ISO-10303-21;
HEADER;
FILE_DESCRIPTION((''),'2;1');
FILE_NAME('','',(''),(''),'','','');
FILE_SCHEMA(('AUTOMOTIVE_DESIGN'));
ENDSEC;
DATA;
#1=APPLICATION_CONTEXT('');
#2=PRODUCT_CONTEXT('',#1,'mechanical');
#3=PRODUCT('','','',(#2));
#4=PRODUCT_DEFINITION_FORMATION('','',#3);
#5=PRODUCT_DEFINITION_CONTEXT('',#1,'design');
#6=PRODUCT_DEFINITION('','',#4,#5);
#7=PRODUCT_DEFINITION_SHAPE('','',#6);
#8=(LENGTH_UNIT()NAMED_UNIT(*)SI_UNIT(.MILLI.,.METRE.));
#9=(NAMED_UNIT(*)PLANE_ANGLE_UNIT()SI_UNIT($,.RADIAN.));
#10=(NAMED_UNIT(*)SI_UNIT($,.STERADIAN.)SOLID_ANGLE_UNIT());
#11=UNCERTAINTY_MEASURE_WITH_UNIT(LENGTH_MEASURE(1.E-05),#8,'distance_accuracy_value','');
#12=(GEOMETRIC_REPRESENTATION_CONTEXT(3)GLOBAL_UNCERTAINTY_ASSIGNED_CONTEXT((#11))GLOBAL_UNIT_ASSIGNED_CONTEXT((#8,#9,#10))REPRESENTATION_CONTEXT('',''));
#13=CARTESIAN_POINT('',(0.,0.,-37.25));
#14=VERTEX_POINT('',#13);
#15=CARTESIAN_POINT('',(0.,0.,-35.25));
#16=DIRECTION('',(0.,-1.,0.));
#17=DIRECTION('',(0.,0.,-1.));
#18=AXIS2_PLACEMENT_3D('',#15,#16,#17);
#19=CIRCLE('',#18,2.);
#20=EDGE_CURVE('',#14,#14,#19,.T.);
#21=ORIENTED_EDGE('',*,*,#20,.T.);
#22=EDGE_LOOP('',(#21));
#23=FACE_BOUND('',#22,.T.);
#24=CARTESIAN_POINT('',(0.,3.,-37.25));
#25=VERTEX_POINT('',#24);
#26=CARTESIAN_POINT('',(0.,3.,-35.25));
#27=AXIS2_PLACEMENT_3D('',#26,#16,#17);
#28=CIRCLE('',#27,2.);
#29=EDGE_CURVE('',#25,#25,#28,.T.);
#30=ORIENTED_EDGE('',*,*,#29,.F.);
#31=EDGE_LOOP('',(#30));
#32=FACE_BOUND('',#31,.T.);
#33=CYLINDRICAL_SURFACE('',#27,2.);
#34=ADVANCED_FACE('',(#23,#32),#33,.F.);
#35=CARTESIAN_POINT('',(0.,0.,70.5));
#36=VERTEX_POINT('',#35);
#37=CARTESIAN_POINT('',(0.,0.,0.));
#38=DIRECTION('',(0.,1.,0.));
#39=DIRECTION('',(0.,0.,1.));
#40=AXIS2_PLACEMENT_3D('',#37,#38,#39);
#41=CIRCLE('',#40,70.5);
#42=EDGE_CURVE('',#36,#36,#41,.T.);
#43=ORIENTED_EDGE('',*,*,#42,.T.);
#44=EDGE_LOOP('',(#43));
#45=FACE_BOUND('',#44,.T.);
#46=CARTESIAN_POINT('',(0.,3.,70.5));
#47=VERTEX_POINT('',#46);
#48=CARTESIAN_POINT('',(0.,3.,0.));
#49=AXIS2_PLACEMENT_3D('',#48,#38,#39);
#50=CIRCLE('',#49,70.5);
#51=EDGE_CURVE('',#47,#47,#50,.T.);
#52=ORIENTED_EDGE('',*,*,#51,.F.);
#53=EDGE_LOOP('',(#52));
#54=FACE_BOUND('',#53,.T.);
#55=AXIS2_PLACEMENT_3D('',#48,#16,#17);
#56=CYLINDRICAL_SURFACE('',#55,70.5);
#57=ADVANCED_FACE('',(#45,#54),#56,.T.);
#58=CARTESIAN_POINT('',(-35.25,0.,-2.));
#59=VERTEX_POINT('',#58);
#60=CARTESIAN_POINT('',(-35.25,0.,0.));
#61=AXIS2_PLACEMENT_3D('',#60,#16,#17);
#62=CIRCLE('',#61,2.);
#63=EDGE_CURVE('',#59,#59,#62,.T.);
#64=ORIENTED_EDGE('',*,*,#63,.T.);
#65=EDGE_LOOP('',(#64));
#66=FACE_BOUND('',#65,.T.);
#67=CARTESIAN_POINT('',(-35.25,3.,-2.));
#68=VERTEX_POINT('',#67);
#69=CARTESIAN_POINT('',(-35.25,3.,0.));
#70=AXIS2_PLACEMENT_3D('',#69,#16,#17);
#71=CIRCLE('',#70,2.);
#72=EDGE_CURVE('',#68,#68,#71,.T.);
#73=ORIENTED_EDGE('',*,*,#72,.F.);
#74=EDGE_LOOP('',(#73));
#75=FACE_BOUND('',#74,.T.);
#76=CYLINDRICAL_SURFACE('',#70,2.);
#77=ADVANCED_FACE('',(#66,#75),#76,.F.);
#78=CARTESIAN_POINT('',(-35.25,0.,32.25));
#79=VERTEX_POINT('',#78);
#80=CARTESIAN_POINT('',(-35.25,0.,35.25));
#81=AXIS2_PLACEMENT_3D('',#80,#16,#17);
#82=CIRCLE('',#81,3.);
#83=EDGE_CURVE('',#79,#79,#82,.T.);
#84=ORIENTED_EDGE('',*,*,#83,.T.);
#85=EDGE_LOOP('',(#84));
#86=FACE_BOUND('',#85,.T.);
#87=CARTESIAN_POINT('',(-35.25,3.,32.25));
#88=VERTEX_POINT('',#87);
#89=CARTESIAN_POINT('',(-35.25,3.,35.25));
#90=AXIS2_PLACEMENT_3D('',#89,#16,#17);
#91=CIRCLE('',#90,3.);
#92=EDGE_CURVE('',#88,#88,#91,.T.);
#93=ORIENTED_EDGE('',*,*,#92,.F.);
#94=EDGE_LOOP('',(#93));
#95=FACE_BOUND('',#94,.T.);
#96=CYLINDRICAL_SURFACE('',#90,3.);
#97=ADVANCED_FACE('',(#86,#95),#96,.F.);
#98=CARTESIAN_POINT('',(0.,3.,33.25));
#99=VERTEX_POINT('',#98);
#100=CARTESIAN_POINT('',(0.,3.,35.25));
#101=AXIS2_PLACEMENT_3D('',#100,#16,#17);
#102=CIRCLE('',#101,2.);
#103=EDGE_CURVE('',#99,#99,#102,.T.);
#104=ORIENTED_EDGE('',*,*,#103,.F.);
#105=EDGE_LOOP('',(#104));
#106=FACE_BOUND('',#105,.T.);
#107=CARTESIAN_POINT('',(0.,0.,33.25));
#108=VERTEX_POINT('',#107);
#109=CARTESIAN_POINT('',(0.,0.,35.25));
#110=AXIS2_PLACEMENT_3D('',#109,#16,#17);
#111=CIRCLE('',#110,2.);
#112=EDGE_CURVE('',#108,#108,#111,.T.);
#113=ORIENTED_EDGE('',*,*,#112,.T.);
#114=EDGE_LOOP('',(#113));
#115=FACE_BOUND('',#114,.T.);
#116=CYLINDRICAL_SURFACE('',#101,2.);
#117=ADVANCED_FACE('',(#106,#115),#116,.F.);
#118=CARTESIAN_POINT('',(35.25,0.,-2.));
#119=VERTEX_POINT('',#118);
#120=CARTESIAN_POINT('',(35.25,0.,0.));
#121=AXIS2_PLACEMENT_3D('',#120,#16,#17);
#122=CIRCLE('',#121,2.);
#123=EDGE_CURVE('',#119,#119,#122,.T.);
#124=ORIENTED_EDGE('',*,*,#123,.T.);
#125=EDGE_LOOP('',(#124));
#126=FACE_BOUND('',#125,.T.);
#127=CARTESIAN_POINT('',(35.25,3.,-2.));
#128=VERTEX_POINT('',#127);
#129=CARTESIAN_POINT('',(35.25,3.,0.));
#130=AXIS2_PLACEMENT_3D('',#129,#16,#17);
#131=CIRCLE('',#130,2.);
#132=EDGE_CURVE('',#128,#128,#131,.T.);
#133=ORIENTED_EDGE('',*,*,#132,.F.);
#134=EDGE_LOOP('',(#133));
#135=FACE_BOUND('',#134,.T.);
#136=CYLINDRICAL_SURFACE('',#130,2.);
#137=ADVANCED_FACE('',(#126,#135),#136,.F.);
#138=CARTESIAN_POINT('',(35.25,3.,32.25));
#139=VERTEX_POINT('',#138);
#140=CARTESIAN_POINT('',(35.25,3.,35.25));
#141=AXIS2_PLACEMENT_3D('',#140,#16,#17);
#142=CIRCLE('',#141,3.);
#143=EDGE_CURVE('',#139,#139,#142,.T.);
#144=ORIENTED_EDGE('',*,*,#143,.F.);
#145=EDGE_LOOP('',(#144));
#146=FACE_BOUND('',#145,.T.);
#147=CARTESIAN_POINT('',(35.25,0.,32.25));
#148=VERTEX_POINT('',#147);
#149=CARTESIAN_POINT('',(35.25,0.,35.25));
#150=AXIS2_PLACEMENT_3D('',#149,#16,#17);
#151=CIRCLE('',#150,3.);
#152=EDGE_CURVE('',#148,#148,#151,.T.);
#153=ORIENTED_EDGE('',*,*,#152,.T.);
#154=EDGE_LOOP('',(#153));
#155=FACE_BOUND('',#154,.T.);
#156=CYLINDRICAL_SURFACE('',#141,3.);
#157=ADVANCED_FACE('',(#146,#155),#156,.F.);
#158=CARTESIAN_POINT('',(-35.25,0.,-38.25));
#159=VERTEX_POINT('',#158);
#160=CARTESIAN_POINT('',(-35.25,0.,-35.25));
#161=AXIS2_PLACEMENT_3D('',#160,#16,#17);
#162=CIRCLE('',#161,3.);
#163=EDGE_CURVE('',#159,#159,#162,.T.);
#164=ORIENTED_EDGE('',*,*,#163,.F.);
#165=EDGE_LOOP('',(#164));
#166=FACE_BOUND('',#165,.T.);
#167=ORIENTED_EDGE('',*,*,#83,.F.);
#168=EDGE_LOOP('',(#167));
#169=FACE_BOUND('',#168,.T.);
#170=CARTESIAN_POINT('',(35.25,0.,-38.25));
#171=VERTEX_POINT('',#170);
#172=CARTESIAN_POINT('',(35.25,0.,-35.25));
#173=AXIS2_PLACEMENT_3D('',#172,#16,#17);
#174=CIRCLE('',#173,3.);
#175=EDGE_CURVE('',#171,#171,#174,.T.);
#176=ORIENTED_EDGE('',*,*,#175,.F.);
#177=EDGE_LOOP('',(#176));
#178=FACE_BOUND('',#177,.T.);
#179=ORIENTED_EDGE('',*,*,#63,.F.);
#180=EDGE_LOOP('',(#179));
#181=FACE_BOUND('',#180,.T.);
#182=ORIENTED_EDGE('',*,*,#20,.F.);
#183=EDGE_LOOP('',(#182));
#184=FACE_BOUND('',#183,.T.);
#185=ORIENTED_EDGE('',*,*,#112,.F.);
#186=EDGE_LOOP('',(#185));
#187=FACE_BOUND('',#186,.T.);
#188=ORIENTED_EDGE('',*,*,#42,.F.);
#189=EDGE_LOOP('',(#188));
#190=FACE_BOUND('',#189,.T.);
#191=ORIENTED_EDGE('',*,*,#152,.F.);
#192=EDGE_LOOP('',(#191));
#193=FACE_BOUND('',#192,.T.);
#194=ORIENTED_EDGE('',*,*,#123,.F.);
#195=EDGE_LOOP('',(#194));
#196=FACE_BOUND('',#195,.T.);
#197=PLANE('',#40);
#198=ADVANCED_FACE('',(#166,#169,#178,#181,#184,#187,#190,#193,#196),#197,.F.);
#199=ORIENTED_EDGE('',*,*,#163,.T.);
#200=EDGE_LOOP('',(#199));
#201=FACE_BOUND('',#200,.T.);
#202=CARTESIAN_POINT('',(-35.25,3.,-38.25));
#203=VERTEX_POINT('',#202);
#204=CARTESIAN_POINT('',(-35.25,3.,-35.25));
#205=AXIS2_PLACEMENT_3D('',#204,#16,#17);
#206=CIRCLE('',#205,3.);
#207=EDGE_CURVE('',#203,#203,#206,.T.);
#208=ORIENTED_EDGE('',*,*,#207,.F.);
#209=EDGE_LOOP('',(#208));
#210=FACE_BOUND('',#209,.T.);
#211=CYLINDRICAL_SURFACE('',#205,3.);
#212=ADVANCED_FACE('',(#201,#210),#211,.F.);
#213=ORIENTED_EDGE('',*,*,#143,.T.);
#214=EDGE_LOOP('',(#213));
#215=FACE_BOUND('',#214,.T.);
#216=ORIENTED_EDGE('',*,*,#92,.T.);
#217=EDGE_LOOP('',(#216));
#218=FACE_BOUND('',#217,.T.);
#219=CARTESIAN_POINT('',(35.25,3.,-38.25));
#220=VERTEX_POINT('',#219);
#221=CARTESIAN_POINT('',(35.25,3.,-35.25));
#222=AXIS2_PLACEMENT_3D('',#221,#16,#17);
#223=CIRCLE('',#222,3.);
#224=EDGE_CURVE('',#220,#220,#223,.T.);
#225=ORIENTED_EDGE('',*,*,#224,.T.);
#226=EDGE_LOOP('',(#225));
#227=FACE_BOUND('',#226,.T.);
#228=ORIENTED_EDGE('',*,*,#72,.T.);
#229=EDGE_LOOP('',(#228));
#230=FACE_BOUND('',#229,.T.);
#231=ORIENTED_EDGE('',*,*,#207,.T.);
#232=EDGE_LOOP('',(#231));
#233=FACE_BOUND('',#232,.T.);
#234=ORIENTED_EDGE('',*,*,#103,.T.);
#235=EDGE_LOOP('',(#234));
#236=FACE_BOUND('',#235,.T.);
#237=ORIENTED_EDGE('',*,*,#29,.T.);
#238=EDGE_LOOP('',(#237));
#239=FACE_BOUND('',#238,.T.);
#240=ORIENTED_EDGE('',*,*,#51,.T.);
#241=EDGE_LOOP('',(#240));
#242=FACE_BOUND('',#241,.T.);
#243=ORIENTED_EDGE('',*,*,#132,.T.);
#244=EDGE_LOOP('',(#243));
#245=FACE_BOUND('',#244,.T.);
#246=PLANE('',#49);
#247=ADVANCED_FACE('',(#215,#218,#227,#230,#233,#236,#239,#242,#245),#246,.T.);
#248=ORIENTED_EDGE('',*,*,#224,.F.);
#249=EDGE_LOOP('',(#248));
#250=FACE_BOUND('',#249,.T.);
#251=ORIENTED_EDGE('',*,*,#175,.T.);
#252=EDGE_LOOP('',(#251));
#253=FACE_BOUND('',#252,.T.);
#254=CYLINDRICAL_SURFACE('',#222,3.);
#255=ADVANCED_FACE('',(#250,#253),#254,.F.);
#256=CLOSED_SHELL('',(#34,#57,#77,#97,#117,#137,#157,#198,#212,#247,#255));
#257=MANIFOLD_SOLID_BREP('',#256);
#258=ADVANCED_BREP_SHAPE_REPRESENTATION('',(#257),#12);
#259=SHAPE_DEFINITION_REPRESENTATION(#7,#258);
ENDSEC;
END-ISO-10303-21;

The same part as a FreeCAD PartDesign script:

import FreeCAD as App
import Part
import Sketcher

V = App.Vector
Q = App.Units.Quantity

doc = App.newDocument("Part")
body = doc.addObject("PartDesign::Body", "Body")

sketch1 = doc.addObject("Sketcher::SketchObject", "Sketch")
body.addObject(sketch1)
sketch1.AttachmentSupport = (doc.XZ_Plane, [""])
sketch1.MapMode = "FlatFace"
sketch1.addGeometry(Part.Circle(V(0, 0, 0), V(0, 0, 1), 70), False)
sketch1.addConstraint([
    Sketcher.Constraint("Coincident", 0, 3, -1, 1),
    Sketcher.Constraint("Diameter", 0, Q("141 mm")),
])
pad1 = doc.addObject("PartDesign::Pad", "Pad")
body.addObject(pad1)
pad1.Profile = sketch1
pad1.Length = 3
pad1.Reversed = True

sketch2 = doc.addObject("Sketcher::SketchObject", "Sketch001")
body.addObject(sketch2)
sketch2.AttachmentSupport = (doc.XZ_Plane, [""])
sketch2.MapMode = "FlatFace"
sketch2.addGeometry([
    Part.Circle(V(-35.2, 0, 0), V(0, 0, 1), 2),
    Part.Circle(V(0, -35.2, 0), V(0, 0, 1), 2),
    Part.Circle(V(35.2, 0, 0), V(0, 0, 1), 2),
    Part.Circle(V(0, 35.2, 0), V(0, 0, 1), 2),
    Part.Circle(V(-35.2, -35.2, 0), V(0, 0, 1), 3),
    Part.Circle(V(-35.2, 35.2, 0), V(0, 0, 1), 3),
    Part.Circle(V(35.2, 35.2, 0), V(0, 0, 1), 3),
    Part.Circle(V(35.2, -35.2, 0), V(0, 0, 1), 3),
], False)
sketch2.addConstraint([
    Sketcher.Constraint("Equal", 0, 1),
    Sketcher.Constraint("Equal", 1, 2),
    Sketcher.Constraint("Equal", 2, 3),
    Sketcher.Constraint("Equal", 4, 5),
    Sketcher.Constraint("Equal", 5, 6),
    Sketcher.Constraint("Equal", 6, 7),
    Sketcher.Constraint("Symmetric", 0, 3, 2, 3, -1, 1),
    Sketcher.Constraint("Symmetric", 1, 3, 3, 3, -1, 1),
    Sketcher.Constraint("Symmetric", 4, 3, 6, 3, -1, 1),
    Sketcher.Constraint("Symmetric", 5, 3, 7, 3, -1, 1),
    Sketcher.Constraint("Symmetric", 5, 3, 6, 3, -2),
    Sketcher.Constraint("PointOnObject", 0, 3, -1),
    Sketcher.Constraint("PointOnObject", 1, 3, -2),
    Sketcher.Constraint("Horizontal", 1, 3, 4, 3),
    Sketcher.Constraint("Vertical", 0, 3, 4, 3),
    Sketcher.Constraint("Diameter", 0, Q("4 mm")),
    Sketcher.Constraint("Diameter", 4, Q("6 mm")),
    Sketcher.Constraint("DistanceX", 0, 3, 2, 3, Q("70.5 mm")),
    Sketcher.Constraint("DistanceY", 1, 3, 3, 3, Q("70.5 mm")),
])
pocket1 = doc.addObject("PartDesign::Pocket", "Pocket")
body.addObject(pocket1)
pocket1.Profile = sketch2
pocket1.Length = 3

doc.recompute()
